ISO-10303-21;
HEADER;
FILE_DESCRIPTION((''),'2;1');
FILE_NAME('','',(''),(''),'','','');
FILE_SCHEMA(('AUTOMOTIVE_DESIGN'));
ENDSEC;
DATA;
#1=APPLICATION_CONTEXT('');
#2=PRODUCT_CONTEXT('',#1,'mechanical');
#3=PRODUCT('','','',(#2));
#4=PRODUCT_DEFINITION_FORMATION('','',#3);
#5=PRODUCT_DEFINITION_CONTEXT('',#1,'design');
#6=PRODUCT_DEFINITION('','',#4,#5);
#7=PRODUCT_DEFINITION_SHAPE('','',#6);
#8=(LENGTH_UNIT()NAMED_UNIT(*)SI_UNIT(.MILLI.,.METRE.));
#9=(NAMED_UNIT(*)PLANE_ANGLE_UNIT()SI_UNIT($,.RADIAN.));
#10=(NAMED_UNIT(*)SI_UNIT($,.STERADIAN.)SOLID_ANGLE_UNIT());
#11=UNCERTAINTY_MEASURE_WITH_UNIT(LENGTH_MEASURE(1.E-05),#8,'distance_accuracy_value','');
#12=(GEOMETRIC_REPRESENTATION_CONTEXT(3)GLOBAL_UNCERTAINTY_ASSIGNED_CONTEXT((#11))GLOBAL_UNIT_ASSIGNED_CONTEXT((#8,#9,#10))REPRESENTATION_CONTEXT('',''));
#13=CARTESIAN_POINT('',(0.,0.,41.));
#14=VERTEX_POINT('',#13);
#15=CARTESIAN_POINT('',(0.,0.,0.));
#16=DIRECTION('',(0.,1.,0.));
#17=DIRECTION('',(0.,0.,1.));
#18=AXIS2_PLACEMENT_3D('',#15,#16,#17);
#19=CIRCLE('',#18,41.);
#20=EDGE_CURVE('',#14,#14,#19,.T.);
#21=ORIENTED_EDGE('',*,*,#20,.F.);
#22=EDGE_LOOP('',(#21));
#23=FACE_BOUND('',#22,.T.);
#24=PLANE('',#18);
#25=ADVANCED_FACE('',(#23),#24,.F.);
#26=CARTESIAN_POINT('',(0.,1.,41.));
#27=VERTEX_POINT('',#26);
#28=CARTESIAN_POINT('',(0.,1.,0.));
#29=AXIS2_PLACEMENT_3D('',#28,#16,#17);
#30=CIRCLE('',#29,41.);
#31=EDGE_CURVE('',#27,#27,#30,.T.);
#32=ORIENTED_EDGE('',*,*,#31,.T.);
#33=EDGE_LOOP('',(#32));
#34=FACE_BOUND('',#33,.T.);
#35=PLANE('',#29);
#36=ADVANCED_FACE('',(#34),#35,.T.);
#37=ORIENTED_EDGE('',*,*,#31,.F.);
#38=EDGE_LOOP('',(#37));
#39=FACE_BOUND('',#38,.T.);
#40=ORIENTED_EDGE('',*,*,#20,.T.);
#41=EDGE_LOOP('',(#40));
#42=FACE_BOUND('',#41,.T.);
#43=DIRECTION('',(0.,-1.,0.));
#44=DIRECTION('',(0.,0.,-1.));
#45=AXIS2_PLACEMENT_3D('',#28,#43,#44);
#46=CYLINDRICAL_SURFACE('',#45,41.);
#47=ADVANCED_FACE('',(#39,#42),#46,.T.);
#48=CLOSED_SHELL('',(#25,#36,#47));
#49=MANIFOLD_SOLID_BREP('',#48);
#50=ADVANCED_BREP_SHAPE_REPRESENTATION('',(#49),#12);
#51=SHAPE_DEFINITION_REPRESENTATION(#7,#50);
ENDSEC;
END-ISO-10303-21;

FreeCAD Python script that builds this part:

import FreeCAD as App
import Part
import Sketcher

V = App.Vector

doc = App.newDocument("Part")
body = doc.addObject("PartDesign::Body", "Body")

sketch1 = body.newObject("Sketcher::SketchObject", "Sketch")
sketch1.AttachmentSupport = (doc.getObject("XZ_Plane"), [""])
sketch1.MapMode = "FlatFace"
sketch1.addGeometry(Part.Circle(V(0, 0, 0), V(0, 0, 1), 41), False)
sketch1.addConstraint([
    Sketcher.Constraint("Coincident", 0, 3, -1, 1),
    Sketcher.Constraint("Diameter", 0, 82.0),
])
pad1 = body.newObject("PartDesign::Pad", "Pad")
pad1.Profile = sketch1
pad1.Length = 1
pad1.Reversed = True

doc.recompute()
